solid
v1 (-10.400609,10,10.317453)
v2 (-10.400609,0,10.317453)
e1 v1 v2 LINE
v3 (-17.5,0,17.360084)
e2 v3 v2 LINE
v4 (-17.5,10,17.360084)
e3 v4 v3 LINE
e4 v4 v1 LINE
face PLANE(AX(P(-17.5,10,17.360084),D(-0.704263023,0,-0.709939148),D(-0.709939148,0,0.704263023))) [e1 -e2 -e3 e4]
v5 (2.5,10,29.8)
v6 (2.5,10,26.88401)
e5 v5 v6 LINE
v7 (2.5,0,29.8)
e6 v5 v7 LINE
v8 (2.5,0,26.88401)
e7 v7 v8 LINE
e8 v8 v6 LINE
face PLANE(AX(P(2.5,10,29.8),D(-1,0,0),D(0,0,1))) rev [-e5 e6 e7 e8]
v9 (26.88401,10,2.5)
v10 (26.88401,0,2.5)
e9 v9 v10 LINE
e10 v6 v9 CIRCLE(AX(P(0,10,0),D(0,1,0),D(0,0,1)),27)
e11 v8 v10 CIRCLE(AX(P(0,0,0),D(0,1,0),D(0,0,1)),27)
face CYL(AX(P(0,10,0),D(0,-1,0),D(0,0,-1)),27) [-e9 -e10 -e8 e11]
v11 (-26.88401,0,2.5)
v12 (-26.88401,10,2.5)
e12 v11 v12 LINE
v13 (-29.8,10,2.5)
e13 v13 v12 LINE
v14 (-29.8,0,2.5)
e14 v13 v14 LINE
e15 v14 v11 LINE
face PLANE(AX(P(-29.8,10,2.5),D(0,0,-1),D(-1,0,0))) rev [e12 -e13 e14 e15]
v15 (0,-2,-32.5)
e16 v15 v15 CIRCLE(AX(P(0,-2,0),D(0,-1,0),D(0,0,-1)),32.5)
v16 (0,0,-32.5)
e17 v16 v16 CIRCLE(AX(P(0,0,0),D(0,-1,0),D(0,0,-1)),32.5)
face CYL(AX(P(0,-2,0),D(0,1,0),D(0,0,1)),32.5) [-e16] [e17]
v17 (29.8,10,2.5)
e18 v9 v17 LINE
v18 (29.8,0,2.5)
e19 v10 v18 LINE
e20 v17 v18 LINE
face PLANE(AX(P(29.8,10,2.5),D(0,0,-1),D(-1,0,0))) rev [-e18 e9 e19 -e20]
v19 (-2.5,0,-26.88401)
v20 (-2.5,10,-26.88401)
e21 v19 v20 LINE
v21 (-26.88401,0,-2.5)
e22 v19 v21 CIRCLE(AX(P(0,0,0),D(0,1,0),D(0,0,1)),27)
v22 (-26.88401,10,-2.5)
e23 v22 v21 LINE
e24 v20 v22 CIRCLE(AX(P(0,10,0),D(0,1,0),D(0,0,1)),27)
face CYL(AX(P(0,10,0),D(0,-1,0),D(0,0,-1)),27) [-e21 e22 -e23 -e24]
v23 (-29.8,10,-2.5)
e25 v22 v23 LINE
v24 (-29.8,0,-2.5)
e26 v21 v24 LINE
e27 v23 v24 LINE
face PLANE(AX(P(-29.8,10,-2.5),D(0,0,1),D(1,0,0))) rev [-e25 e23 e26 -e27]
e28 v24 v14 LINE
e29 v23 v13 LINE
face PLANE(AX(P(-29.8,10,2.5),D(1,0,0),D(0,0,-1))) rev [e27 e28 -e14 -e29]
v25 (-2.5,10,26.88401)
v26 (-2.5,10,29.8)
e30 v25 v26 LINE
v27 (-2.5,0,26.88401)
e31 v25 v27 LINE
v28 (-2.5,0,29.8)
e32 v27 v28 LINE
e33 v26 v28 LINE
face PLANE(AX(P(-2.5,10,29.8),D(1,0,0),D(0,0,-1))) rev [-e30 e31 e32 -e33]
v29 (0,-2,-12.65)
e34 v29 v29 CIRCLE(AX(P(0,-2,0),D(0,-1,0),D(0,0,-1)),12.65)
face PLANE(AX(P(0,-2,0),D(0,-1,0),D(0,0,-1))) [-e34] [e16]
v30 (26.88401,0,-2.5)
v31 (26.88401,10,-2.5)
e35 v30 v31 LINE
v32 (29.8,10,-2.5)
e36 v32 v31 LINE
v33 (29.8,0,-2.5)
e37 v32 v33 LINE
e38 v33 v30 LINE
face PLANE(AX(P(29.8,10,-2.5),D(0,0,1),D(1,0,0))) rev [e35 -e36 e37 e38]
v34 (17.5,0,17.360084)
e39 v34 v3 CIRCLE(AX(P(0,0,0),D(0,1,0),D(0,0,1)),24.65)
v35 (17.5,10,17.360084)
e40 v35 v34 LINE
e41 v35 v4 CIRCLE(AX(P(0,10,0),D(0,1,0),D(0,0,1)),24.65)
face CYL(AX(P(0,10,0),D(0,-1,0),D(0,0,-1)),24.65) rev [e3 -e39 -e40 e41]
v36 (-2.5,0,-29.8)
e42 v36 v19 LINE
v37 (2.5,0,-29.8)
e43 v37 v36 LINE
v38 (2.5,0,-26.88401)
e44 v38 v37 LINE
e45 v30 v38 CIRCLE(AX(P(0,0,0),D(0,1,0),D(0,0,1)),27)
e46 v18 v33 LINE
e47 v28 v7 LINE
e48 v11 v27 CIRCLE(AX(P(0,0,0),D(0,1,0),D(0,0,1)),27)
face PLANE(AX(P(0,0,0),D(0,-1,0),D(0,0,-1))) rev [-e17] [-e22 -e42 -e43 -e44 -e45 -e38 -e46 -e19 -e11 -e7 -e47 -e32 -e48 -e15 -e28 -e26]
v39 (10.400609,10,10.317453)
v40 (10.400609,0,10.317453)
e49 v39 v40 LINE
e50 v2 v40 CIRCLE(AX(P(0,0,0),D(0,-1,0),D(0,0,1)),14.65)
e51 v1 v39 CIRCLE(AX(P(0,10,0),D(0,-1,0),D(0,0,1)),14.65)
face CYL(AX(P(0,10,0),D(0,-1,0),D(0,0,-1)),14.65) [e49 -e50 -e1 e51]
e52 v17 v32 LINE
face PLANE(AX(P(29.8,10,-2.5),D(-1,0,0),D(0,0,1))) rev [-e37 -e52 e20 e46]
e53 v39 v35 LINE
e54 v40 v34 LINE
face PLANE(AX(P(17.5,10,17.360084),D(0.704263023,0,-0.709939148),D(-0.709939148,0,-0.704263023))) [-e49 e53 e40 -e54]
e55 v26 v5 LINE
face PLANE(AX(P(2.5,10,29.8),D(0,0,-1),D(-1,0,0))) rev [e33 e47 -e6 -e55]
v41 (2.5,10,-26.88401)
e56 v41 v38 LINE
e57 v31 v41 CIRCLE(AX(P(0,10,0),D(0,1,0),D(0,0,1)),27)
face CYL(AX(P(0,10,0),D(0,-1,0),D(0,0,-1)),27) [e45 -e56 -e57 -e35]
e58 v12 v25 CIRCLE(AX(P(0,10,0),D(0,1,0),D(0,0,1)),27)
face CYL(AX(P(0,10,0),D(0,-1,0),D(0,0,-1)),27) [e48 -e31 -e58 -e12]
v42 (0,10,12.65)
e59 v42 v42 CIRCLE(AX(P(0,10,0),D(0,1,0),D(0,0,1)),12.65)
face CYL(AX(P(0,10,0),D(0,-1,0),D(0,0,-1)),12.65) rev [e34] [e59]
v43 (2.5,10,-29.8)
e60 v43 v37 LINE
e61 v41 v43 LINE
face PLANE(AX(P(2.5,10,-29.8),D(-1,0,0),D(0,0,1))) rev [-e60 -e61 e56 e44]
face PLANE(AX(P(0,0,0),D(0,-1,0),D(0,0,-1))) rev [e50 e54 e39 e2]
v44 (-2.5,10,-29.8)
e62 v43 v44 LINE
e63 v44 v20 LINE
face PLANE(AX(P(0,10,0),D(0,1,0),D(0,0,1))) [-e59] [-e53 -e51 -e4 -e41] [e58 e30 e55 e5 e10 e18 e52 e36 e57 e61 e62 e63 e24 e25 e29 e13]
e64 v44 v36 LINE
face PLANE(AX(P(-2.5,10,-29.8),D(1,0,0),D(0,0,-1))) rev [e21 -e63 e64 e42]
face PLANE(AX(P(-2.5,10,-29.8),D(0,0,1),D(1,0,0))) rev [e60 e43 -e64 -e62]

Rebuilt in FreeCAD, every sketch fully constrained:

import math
import FreeCAD as App
import Part
import Sketcher

V = App.Vector

doc = App.newDocument("Part")
body = doc.addObject("PartDesign::Body", "Body")

# Sketch on XZ plane
sketch1 = body.newObject("Sketcher::SketchObject", "Sketch")
sketch1.AttachmentSupport = (doc.getObject("XZ_Plane"), [""])
sketch1.MapMode = "FlatFace"
sketch1.addGeometry(Part.Circle(V(0, 0, 0), V(0, 0, 1), 27), False)
sketch1.addGeometry(Part.LineSegment(V(-10, 10, 0), V(-18, 17, 0)), False)
sketch1.addGeometry(Part.ArcOfCircle(Part.Circle(V(0, 0, 0), V(0, 0, 1), 25), math.radians(135), math.radians(405)), False)
sketch1.addGeometry(Part.LineSegment(V(18, 17, 0), V(10, 10, 0)), False)
sketch1.addGeometry(Part.ArcOfCircle(Part.Circle(V(0, 0, 0), V(0, 0, 1), 15), math.radians(135), math.radians(405)), False)
sketch1.addGeometry(Part.Circle(V(0, 0, 0), V(0, 0, 1), 13), False)
sketch1.addConstraint(Sketcher.Constraint("Coincident", 1, 2, 2, 1))
sketch1.addConstraint(Sketcher.Constraint("Coincident", 2, 2, 3, 1))
sketch1.addConstraint(Sketcher.Constraint("Coincident", 3, 2, 4, 2))
sketch1.addConstraint(Sketcher.Constraint("Coincident", 4, 1, 1, 1))
sketch1.addConstraint(Sketcher.Constraint("Coincident", 0, 3, -1, 1))
sketch1.addConstraint(Sketcher.Constraint("Coincident", 2, 3, -1, 1))
sketch1.addConstraint(Sketcher.Constraint("Coincident", 4, 3, -1, 1))
sketch1.addConstraint(Sketcher.Constraint("Coincident", 5, 3, -1, 1))
sketch1.addConstraint(Sketcher.Constraint("Horizontal", 1, 2, 2, 2))
sketch1.addConstraint(Sketcher.Constraint("Horizontal", 3, 2, 4, 1))
sketch1.addConstraint(Sketcher.Constraint("Diameter", 0, 54.0))
sketch1.addConstraint(Sketcher.Constraint("Diameter", 5, 25.3))
sketch1.addConstraint(Sketcher.Constraint("Radius", 2, 24.65))
sketch1.addConstraint(Sketcher.Constraint("Radius", 4, 14.65))
sketch1.addConstraint(Sketcher.Constraint("DistanceX", 1, 2, 2, 2, 35.0))
sketch1.addConstraint(Sketcher.Constraint("DistanceX", -1, 1, 3, 2, 10.400609))
pad1 = body.newObject("PartDesign::Pad", "Pad")
pad1.Profile = sketch1
pad1.Length = 10
pad1.Reversed = True

# Sketch on XZ plane
sketch2 = body.newObject("Sketcher::SketchObject", "Sketch001")
sketch2.AttachmentSupport = (doc.getObject("XZ_Plane"), [""])
sketch2.MapMode = "FlatFace"
sketch2.AttachmentOffset = App.Placement(V(0, 0, 2), App.Rotation())
sketch2.addGeometry(Part.Circle(V(0, 0, 0), V(0, 0, 1), 32), False)
sketch2.addGeometry(Part.Circle(V(0, 0, 0), V(0, 0, 1), 13), False)
sketch2.addConstraint(Sketcher.Constraint("Coincident", 0, 3, -1, 1))
sketch2.addConstraint(Sketcher.Constraint("Coincident", 1, 3, -1, 1))
sketch2.addConstraint(Sketcher.Constraint("Diameter", 0, 65.0))
sketch2.addConstraint(Sketcher.Constraint("Diameter", 1, 25.3))
pad2 = body.newObject("PartDesign::Pad", "Pad001")
pad2.Profile = sketch2
pad2.Length = 2
pad2.Reversed = True

# Sketch on XZ plane
sketch3 = body.newObject("Sketcher::SketchObject", "Sketch002")
sketch3.AttachmentSupport = (doc.getObject("XZ_Plane"), [""])
sketch3.MapMode = "FlatFace"
sketch3.addGeometry(Part.LineSegment(V(-2.5, -29.8, 0), V(-2.5, -25.4, 0)), False)
sketch3.addGeometry(Part.LineSegment(V(-2.5, -25.4, 0), V(2.5, -25.4, 0)), False)
sketch3.addGeometry(Part.LineSegment(V(2.5, -25.4, 0), V(2.5, -29.8, 0)), False)
sketch3.addGeometry(Part.LineSegment(V(2.5, -29.8, 0), V(-2.5, -29.8, 0)), False)
sketch3.addGeometry(Part.LineSegment(V(25.4, -2.5, 0), V(25.4, 2.5, 0)), False)
sketch3.addGeometry(Part.LineSegment(V(25.4, 2.5, 0), V(29.8, 2.5, 0)), False)
sketch3.addGeometry(Part.LineSegment(V(29.8, 2.5, 0), V(29.8, -2.5, 0)), False)
sketch3.addGeometry(Part.LineSegment(V(29.8, -2.5, 0), V(25.4, -2.5, 0)), False)
sketch3.addGeometry(Part.LineSegment(V(-2.5, 25.4, 0), V(-2.5, 29.8, 0)), False)
sketch3.addGeometry(Part.LineSegment(V(-2.5, 29.8, 0), V(2.5, 29.8, 0)), False)
sketch3.addGeometry(Part.LineSegment(V(2.5, 29.8, 0), V(2.5, 25.4, 0)), False)
sketch3.addGeometry(Part.LineSegment(V(2.5, 25.4, 0), V(-2.5, 25.4, 0)), False)
sketch3.addGeometry(Part.LineSegment(V(-29.8, -2.5, 0), V(-29.8, 2.5, 0)), False)
sketch3.addGeometry(Part.LineSegment(V(-29.8, 2.5, 0), V(-25.4, 2.5, 0)), False)
sketch3.addGeometry(Part.LineSegment(V(-25.4, 2.5, 0), V(-25.4, -2.5, 0)), False)
sketch3.addGeometry(Part.LineSegment(V(-25.4, -2.5, 0), V(-29.8, -2.5, 0)), False)
sketch3.addConstraint(Sketcher.Constraint("Coincident", 0, 2, 1, 1))
sketch3.addConstraint(Sketcher.Constraint("Coincident", 1, 2, 2, 1))
sketch3.addConstraint(Sketcher.Constraint("Coincident", 2, 2, 3, 1))
sketch3.addConstraint(Sketcher.Constraint("Coincident", 3, 2, 0, 1))
sketch3.addConstraint(Sketcher.Constraint("Coincident", 4, 2, 5, 1))
sketch3.addConstraint(Sketcher.Constraint("Coincident", 5, 2, 6, 1))
sketch3.addConstraint(Sketcher.Constraint("Coincident", 6, 2, 7, 1))
sketch3.addConstraint(Sketcher.Constraint("Coincident", 7, 2, 4, 1))
sketch3.addConstraint(Sketcher.Constraint("Coincident", 8, 2, 9, 1))
sketch3.addConstraint(Sketcher.Constraint("Coincident", 9, 2, 10, 1))
sketch3.addConstraint(Sketcher.Constraint("Coincident", 10, 2, 11, 1))
sketch3.addConstraint(Sketcher.Constraint("Coincident", 11, 2, 8, 1))
sketch3.addConstraint(Sketcher.Constraint("Coincident", 12, 2, 13, 1))
sketch3.addConstraint(Sketcher.Constraint("Coincident", 13, 2, 14, 1))
sketch3.addConstraint(Sketcher.Constraint("Coincident", 14, 2, 15, 1))
sketch3.addConstraint(Sketcher.Constraint("Coincident", 15, 2, 12, 1))
sketch3.addConstraint(Sketcher.Constraint("Vertical", 0))
sketch3.addConstraint(Sketcher.Constraint("Horizontal", 1))
sketch3.addConstraint(Sketcher.Constraint("Vertical", 2))
sketch3.addConstraint(Sketcher.Constraint("Horizontal", 3))
sketch3.addConstraint(Sketcher.Constraint("Vertical", 4))
sketch3.addConstraint(Sketcher.Constraint("Horizontal", 5))
sketch3.addConstraint(Sketcher.Constraint("Vertical", 6))
sketch3.addConstraint(Sketcher.Constraint("Horizontal", 7))
sketch3.addConstraint(Sketcher.Constraint("Vertical", 8))
sketch3.addConstraint(Sketcher.Constraint("Horizontal", 9))
sketch3.addConstraint(Sketcher.Constraint("Vertical", 10))
sketch3.addConstraint(Sketcher.Constraint("Horizontal", 11))
sketch3.addConstraint(Sketcher.Constraint("Vertical", 12))
sketch3.addConstraint(Sketcher.Constraint("Horizontal", 13))
sketch3.addConstraint(Sketcher.Constraint("Vertical", 14))
sketch3.addConstraint(Sketcher.Constraint("Horizontal", 15))
sketch3.addConstraint(Sketcher.Constraint("Symmetric", 2, 2, 8, 2, -1, 1))
sketch3.addConstraint(Sketcher.Constraint("Symmetric", 0, 2, 10, 2, -1, 1))
sketch3.addConstraint(Sketcher.Constraint("Symmetric", 6, 2, 12, 2, -1, 1))
sketch3.addConstraint(Sketcher.Constraint("Symmetric", 4, 2, 14, 2, -1, 1))
sketch3.addConstraint(Sketcher.Constraint("Horizontal", 5, 2, 12, 2))
sketch3.addConstraint(Sketcher.Constraint("Vertical", 3, 2, 8, 2))
sketch3.addConstraint(Sketcher.Constraint("Equal", 15, 0))
sketch3.addConstraint(Sketcher.Constraint("Equal", 11, 4))
sketch3.addConstraint(Sketcher.Constraint("DistanceX", 1, 1, 1, 2, 5.0))
sketch3.addConstraint(Sketcher.Constraint("DistanceY", 2, 2, -1, 1, 29.8))
sketch3.addConstraint(Sketcher.Constraint("DistanceX", -1, 1, 5, 2, 29.8))
sketch3.addConstraint(Sketcher.Constraint("DistanceX", 5, 1, 5, 2, 4.396773))
pad3 = body.newObject("PartDesign::Pad", "Pad002")
pad3.Profile = sketch3
pad3.Length = 10
pad3.Reversed = True

doc.recompute()
